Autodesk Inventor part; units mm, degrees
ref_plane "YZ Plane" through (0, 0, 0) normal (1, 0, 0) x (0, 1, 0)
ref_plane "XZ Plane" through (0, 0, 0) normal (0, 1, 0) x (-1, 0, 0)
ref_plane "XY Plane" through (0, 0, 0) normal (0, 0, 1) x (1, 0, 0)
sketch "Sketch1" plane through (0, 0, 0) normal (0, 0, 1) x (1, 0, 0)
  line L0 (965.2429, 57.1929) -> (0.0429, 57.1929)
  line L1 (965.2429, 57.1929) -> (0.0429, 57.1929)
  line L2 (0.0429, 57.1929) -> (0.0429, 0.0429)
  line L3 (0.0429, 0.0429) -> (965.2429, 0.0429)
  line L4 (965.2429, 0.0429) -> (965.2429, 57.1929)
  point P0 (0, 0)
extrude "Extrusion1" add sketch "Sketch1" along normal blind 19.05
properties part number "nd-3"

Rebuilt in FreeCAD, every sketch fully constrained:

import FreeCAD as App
import Part
import Sketcher
Q = App.Units.Quantity

doc = App.newDocument("Part")
body = doc.addObject("PartDesign::Body", "Body")

# Sketch on XY plane
sketch1 = body.newObject("Sketcher::SketchObject", "Sketch")
sketch1.AttachmentSupport = (doc.getObject("XY_Plane"), [""])
sketch1.MapMode = "FlatFace"
sketch1.addGeometry(Part.LineSegment(App.Vector(965.2429, 0.0429, 0), App.Vector(965.2429, 57.1929, 0)), False)
sketch1.addGeometry(Part.LineSegment(App.Vector(965.2429, 57.1929, 0), App.Vector(0.0429, 57.1929, 0)), False)
sketch1.addGeometry(Part.LineSegment(App.Vector(0.0429, 57.1929, 0), App.Vector(0.0429, 0.0429, 0)), False)
sketch1.addGeometry(Part.LineSegment(App.Vector(0.0429, 0.0429, 0), App.Vector(965.2429, 0.0429, 0)), False)
sketch1.addConstraint(Sketcher.Constraint("Coincident", 0, 2, 1, 1))
sketch1.addConstraint(Sketcher.Constraint("Coincident", 1, 2, 2, 1))
sketch1.addConstraint(Sketcher.Constraint("Coincident", 2, 2, 3, 1))
sketch1.addConstraint(Sketcher.Constraint("Coincident", 3, 2, 0, 1))
sketch1.addConstraint(Sketcher.Constraint("Vertical", 0))
sketch1.addConstraint(Sketcher.Constraint("Horizontal", 1))
sketch1.addConstraint(Sketcher.Constraint("Vertical", 2))
sketch1.addConstraint(Sketcher.Constraint("Horizontal", 3))
sketch1.addConstraint(Sketcher.Constraint("DistanceX", 1, 2, 1, 1, Q("38 in")))
sketch1.addConstraint(Sketcher.Constraint("DistanceY", 0, 1, 0, 2, Q("2.25 in")))
sketch1.addConstraint(Sketcher.Constraint("DistanceX", -1, 1, 0, 2, Q("38.0017 in")))
sketch1.addConstraint(Sketcher.Constraint("DistanceY", -1, 1, 0, 2, Q("2.2517 in")))
pad1 = body.newObject("PartDesign::Pad", "Pad")
pad1.Profile = sketch1
pad1.Length = Q("0.75 in")

doc.recompute()
